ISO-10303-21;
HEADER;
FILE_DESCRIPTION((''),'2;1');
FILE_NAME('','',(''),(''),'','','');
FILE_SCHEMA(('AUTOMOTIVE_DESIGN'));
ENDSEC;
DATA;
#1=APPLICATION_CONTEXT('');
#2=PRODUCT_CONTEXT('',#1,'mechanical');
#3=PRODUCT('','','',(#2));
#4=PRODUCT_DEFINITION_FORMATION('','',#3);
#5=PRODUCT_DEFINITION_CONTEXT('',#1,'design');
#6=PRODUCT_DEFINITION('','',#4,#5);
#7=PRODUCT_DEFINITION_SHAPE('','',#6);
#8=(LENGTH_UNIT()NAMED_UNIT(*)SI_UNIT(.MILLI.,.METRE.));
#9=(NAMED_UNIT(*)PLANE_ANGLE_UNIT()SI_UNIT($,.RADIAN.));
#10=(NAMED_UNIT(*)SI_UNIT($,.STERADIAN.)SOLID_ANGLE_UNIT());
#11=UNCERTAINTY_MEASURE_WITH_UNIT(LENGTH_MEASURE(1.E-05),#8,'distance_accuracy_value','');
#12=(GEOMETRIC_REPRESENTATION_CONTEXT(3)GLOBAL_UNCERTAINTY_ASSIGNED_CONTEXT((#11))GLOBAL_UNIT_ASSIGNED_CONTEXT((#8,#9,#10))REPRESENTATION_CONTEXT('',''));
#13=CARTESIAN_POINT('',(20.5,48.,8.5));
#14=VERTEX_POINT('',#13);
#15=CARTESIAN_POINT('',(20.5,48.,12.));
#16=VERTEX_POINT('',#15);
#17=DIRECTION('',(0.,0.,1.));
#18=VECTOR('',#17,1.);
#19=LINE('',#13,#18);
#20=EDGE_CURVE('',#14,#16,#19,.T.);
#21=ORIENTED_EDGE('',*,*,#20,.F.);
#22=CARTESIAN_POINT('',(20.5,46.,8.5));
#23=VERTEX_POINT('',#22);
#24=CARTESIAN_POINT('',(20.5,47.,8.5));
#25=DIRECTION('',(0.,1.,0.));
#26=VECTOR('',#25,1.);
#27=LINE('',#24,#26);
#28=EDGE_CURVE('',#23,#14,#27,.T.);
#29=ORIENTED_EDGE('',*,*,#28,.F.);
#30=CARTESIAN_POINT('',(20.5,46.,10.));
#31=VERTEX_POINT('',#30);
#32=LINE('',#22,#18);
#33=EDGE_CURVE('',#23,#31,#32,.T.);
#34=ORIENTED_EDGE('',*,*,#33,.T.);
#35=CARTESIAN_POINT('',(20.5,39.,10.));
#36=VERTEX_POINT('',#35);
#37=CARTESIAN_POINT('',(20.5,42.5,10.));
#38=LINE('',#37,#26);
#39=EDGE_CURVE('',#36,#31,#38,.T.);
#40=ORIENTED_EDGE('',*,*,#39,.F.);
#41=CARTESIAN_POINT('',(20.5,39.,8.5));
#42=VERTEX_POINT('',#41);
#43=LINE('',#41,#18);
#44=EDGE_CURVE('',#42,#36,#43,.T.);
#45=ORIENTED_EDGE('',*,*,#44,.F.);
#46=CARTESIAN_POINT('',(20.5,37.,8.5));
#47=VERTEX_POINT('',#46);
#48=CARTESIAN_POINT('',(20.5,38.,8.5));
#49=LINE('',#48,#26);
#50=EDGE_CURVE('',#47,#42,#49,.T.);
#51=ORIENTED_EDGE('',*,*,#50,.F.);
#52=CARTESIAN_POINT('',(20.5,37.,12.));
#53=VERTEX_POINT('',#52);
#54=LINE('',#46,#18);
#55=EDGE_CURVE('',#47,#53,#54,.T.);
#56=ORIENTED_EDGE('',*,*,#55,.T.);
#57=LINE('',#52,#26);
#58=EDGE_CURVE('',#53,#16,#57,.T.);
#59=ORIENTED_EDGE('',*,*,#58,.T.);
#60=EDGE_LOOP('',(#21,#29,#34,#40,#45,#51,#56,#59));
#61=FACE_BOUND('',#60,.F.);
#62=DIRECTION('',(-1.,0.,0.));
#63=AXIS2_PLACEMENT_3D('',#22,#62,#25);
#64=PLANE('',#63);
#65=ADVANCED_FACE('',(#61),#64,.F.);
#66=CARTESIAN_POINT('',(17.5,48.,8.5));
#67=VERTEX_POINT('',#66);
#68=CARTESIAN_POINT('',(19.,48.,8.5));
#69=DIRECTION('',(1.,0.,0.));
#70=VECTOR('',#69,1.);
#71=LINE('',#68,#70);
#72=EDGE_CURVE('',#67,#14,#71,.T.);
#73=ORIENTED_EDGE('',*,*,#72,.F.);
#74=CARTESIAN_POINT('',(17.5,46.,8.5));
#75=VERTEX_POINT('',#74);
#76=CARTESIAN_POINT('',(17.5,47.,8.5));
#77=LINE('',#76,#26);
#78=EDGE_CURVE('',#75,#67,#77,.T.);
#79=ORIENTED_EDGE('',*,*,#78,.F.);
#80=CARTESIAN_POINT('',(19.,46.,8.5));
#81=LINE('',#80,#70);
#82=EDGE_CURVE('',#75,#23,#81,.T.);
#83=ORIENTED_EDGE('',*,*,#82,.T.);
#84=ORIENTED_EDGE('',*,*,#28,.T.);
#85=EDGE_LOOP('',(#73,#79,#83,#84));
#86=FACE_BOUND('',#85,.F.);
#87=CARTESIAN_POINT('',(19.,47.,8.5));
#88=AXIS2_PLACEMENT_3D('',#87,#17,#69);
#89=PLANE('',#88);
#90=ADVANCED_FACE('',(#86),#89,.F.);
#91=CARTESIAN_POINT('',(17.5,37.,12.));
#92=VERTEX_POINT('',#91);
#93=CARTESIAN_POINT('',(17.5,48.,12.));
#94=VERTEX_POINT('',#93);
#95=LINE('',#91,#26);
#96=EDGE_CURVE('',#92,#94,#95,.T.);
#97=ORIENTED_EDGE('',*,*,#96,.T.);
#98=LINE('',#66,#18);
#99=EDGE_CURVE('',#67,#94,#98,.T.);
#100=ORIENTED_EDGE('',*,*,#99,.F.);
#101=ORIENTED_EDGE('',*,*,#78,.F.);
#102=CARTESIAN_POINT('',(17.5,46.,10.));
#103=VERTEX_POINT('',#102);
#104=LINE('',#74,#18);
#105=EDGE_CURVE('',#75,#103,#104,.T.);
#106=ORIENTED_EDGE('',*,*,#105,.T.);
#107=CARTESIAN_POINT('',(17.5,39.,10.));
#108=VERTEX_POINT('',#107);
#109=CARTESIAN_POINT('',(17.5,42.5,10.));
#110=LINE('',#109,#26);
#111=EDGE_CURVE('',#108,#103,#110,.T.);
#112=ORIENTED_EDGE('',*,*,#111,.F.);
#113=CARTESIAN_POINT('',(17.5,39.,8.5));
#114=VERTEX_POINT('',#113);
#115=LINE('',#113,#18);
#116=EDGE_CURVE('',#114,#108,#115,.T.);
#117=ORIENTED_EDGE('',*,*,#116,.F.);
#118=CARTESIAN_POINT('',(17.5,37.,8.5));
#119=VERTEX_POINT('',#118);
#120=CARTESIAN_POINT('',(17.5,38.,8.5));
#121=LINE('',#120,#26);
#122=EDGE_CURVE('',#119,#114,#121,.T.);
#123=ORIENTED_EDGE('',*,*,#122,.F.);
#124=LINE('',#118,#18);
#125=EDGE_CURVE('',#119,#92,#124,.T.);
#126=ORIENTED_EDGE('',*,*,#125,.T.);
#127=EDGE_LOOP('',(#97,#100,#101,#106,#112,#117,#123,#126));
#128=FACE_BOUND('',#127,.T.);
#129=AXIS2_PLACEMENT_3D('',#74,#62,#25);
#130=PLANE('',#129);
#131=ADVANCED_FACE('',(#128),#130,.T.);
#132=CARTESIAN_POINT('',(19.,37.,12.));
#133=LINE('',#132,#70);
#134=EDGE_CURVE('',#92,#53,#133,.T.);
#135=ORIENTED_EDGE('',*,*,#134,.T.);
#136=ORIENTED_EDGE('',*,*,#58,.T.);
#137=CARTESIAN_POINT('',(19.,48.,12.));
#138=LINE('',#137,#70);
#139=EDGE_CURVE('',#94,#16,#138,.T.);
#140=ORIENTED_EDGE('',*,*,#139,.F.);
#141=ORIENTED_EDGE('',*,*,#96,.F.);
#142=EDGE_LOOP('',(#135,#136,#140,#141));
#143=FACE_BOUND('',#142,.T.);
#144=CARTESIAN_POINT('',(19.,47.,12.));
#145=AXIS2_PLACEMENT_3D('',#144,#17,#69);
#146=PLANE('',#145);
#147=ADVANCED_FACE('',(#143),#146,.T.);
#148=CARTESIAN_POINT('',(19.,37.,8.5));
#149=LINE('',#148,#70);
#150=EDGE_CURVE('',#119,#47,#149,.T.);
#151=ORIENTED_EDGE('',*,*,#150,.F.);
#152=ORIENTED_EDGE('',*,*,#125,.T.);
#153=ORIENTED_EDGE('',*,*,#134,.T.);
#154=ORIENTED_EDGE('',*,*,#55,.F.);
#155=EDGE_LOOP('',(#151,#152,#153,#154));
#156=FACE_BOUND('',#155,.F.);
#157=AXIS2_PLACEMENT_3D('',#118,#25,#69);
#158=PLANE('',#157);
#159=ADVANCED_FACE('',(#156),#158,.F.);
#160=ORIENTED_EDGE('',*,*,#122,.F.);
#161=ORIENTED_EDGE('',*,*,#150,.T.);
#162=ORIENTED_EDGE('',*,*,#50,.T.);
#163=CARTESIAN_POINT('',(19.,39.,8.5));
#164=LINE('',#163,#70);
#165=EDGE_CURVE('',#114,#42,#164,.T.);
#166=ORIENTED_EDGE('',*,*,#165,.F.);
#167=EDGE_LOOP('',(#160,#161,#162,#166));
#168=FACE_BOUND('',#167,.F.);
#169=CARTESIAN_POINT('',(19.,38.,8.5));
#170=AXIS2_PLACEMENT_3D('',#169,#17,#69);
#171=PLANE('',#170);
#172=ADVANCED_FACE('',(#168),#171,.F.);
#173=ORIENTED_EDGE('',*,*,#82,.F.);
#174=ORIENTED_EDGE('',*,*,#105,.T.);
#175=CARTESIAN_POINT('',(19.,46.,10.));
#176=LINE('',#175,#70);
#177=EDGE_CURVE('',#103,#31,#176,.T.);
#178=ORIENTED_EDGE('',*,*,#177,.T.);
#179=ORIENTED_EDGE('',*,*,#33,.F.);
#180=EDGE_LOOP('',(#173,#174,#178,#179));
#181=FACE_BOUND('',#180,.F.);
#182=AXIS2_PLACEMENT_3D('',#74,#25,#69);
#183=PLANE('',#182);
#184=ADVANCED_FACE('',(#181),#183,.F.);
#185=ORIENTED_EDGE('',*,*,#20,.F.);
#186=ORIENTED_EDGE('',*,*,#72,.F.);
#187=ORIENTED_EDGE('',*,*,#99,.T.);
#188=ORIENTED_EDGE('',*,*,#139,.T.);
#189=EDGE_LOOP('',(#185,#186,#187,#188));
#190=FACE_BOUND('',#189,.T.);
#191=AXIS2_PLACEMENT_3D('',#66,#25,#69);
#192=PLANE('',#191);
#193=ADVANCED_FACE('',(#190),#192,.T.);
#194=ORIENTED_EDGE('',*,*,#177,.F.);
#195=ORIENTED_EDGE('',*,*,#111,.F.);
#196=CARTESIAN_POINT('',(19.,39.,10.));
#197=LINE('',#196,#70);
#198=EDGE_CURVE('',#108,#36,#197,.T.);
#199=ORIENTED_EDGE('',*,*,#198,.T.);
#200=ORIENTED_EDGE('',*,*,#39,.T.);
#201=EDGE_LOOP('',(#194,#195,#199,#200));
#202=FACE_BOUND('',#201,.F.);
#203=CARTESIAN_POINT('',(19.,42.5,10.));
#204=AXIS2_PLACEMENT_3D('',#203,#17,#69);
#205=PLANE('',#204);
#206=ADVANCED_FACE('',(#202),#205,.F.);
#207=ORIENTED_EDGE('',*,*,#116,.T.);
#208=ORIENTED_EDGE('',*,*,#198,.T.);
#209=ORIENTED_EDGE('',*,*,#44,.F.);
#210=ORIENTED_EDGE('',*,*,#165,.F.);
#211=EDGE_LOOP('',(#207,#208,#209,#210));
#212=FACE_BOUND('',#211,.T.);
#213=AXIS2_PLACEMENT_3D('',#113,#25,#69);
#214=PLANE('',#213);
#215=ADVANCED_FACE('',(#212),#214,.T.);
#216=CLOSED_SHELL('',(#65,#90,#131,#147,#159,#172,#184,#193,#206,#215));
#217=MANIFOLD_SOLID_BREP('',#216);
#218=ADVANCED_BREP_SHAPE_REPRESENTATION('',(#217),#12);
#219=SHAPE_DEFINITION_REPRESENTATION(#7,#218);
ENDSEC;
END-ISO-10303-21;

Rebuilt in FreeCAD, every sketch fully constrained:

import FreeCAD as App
import Part
import Sketcher

V = App.Vector
Q = App.Units.Quantity

doc = App.newDocument("Part")
body = doc.addObject("PartDesign::Body", "Body")

# Sketch on XY plane
sketch1 = doc.addObject("Sketcher::SketchObject", "Sketch")
body.addObject(sketch1)
sketch1.AttachmentSupport = (doc.XY_Plane, [""])
sketch1.MapMode = "FlatFace"
sketch1.AttachmentOffset = App.Placement(V(0, 0, 10), App.Rotation())
sketch1.addGeometry(Part.LineSegment(V(17.5, 46, 0), V(17.5, 39, 0)), False)
sketch1.addGeometry(Part.LineSegment(V(17.5, 39, 0), V(20.5, 39, 0)), False)
sketch1.addGeometry(Part.LineSegment(V(20.5, 39, 0), V(20.5, 46, 0)), False)
sketch1.addGeometry(Part.LineSegment(V(20.5, 46, 0), V(17.5, 46, 0)), False)
sketch1.addConstraint(Sketcher.Constraint("Coincident", 0, 2, 1, 1))
sketch1.addConstraint(Sketcher.Constraint("Coincident", 1, 2, 2, 1))
sketch1.addConstraint(Sketcher.Constraint("Coincident", 2, 2, 3, 1))
sketch1.addConstraint(Sketcher.Constraint("Coincident", 3, 2, 0, 1))
sketch1.addConstraint(Sketcher.Constraint("Vertical", 0))
sketch1.addConstraint(Sketcher.Constraint("Horizontal", 1))
sketch1.addConstraint(Sketcher.Constraint("Vertical", 2))
sketch1.addConstraint(Sketcher.Constraint("Horizontal", 3))
sketch1.addConstraint(Sketcher.Constraint("DistanceX", 1, 1, 1, 2, Q("3 mm")))
sketch1.addConstraint(Sketcher.Constraint("DistanceY", 0, 2, 0, 1, Q("7 mm")))
sketch1.addConstraint(Sketcher.Constraint("DistanceY", -1, 1, 0, 2, Q("39 mm")))
sketch1.addConstraint(Sketcher.Constraint("DistanceX", -1, 1, 0, 2, Q("17.5 mm")))
pad1 = doc.addObject("PartDesign::Pad", "Pad")
body.addObject(pad1)
pad1.Profile = sketch1
pad1.Length = 2
body2 = doc.addObject("PartDesign::Body", "Body001")

# Sketch on XY plane
sketch2 = doc.addObject("Sketcher::SketchObject", "Sketch001")
body2.addObject(sketch2)
sketch2.AttachmentSupport = (doc.getObject("XY_Plane001"), [""])
sketch2.MapMode = "FlatFace"
sketch2.AttachmentOffset = App.Placement(V(0, 0, 8.5), App.Rotation())
sketch2.addGeometry(Part.LineSegment(V(17.5, 48, 0), V(17.5, 46, 0)), False)
sketch2.addGeometry(Part.LineSegment(V(17.5, 46, 0), V(20.5, 46, 0)), False)
sketch2.addGeometry(Part.LineSegment(V(20.5, 46, 0), V(20.5, 48, 0)), False)
sketch2.addGeometry(Part.LineSegment(V(20.5, 48, 0), V(17.5, 48, 0)), False)
sketch2.addConstraint(Sketcher.Constraint("Coincident", 0, 2, 1, 1))
sketch2.addConstraint(Sketcher.Constraint("Coincident", 1, 2, 2, 1))
sketch2.addConstraint(Sketcher.Constraint("Coincident", 2, 2, 3, 1))
sketch2.addConstraint(Sketcher.Constraint("Coincident", 3, 2, 0, 1))
sketch2.addConstraint(Sketcher.Constraint("Vertical", 0))
sketch2.addConstraint(Sketcher.Constraint("Horizontal", 1))
sketch2.addConstraint(Sketcher.Constraint("Vertical", 2))
sketch2.addConstraint(Sketcher.Constraint("Horizontal", 3))
sketch2.addConstraint(Sketcher.Constraint("DistanceX", 1, 1, 1, 2, Q("3 mm")))
sketch2.addConstraint(Sketcher.Constraint("DistanceY", 0, 2, 0, 1, Q("2 mm")))
sketch2.addConstraint(Sketcher.Constraint("DistanceY", -1, 1, 0, 2, Q("46 mm")))
sketch2.addConstraint(Sketcher.Constraint("DistanceX", -1, 1, 0, 2, Q("17.5 mm")))
pad2 = doc.addObject("PartDesign::Pad", "Pad001")
body2.addObject(pad2)
pad2.Profile = sketch2
pad2.Length = 3.5
body3 = doc.addObject("PartDesign::Body", "Body002")

# Sketch on XY plane
sketch3 = doc.addObject("Sketcher::SketchObject", "Sketch002")
body3.addObject(sketch3)
sketch3.AttachmentSupport = (doc.getObject("XY_Plane002"), [""])
sketch3.MapMode = "FlatFace"
sketch3.AttachmentOffset = App.Placement(V(0, 0, 8.5), App.Rotation())
sketch3.addGeometry(Part.LineSegment(V(17.5, 39, 0), V(17.5, 37, 0)), False)
sketch3.addGeometry(Part.LineSegment(V(17.5, 37, 0), V(20.5, 37, 0)), False)
sketch3.addGeometry(Part.LineSegment(V(20.5, 37, 0), V(20.5, 39, 0)), False)
sketch3.addGeometry(Part.LineSegment(V(20.5, 39, 0), V(17.5, 39, 0)), False)
sketch3.addConstraint(Sketcher.Constraint("Coincident", 0, 2, 1, 1))
sketch3.addConstraint(Sketcher.Constraint("Coincident", 1, 2, 2, 1))
sketch3.addConstraint(Sketcher.Constraint("Coincident", 2, 2, 3, 1))
sketch3.addConstraint(Sketcher.Constraint("Coincident", 3, 2, 0, 1))
sketch3.addConstraint(Sketcher.Constraint("Vertical", 0))
sketch3.addConstraint(Sketcher.Constraint("Horizontal", 1))
sketch3.addConstraint(Sketcher.Constraint("Vertical", 2))
sketch3.addConstraint(Sketcher.Constraint("Horizontal", 3))
sketch3.addConstraint(Sketcher.Constraint("DistanceX", 1, 1, 1, 2, Q("3 mm")))
sketch3.addConstraint(Sketcher.Constraint("DistanceY", 0, 2, 0, 1, Q("2 mm")))
sketch3.addConstraint(Sketcher.Constraint("DistanceY", -1, 1, 0, 2, Q("37 mm")))
sketch3.addConstraint(Sketcher.Constraint("DistanceX", -1, 1, 0, 2, Q("17.5 mm")))
pad3 = doc.addObject("PartDesign::Pad", "Pad002")
body3.addObject(pad3)
pad3.Profile = sketch3
pad3.Length = 3.5
doc.recompute()

boolean = doc.addObject("PartDesign::Boolean", "Boolean")
body3.addObject(boolean)
boolean.Type = "Fuse"
boolean.addObjects([body])
doc.recompute()

boolean2 = doc.addObject("PartDesign::Boolean", "Boolean001")
body3.addObject(boolean2)
boolean2.Type = "Fuse"
boolean2.addObjects([body2])

doc.recompute()
